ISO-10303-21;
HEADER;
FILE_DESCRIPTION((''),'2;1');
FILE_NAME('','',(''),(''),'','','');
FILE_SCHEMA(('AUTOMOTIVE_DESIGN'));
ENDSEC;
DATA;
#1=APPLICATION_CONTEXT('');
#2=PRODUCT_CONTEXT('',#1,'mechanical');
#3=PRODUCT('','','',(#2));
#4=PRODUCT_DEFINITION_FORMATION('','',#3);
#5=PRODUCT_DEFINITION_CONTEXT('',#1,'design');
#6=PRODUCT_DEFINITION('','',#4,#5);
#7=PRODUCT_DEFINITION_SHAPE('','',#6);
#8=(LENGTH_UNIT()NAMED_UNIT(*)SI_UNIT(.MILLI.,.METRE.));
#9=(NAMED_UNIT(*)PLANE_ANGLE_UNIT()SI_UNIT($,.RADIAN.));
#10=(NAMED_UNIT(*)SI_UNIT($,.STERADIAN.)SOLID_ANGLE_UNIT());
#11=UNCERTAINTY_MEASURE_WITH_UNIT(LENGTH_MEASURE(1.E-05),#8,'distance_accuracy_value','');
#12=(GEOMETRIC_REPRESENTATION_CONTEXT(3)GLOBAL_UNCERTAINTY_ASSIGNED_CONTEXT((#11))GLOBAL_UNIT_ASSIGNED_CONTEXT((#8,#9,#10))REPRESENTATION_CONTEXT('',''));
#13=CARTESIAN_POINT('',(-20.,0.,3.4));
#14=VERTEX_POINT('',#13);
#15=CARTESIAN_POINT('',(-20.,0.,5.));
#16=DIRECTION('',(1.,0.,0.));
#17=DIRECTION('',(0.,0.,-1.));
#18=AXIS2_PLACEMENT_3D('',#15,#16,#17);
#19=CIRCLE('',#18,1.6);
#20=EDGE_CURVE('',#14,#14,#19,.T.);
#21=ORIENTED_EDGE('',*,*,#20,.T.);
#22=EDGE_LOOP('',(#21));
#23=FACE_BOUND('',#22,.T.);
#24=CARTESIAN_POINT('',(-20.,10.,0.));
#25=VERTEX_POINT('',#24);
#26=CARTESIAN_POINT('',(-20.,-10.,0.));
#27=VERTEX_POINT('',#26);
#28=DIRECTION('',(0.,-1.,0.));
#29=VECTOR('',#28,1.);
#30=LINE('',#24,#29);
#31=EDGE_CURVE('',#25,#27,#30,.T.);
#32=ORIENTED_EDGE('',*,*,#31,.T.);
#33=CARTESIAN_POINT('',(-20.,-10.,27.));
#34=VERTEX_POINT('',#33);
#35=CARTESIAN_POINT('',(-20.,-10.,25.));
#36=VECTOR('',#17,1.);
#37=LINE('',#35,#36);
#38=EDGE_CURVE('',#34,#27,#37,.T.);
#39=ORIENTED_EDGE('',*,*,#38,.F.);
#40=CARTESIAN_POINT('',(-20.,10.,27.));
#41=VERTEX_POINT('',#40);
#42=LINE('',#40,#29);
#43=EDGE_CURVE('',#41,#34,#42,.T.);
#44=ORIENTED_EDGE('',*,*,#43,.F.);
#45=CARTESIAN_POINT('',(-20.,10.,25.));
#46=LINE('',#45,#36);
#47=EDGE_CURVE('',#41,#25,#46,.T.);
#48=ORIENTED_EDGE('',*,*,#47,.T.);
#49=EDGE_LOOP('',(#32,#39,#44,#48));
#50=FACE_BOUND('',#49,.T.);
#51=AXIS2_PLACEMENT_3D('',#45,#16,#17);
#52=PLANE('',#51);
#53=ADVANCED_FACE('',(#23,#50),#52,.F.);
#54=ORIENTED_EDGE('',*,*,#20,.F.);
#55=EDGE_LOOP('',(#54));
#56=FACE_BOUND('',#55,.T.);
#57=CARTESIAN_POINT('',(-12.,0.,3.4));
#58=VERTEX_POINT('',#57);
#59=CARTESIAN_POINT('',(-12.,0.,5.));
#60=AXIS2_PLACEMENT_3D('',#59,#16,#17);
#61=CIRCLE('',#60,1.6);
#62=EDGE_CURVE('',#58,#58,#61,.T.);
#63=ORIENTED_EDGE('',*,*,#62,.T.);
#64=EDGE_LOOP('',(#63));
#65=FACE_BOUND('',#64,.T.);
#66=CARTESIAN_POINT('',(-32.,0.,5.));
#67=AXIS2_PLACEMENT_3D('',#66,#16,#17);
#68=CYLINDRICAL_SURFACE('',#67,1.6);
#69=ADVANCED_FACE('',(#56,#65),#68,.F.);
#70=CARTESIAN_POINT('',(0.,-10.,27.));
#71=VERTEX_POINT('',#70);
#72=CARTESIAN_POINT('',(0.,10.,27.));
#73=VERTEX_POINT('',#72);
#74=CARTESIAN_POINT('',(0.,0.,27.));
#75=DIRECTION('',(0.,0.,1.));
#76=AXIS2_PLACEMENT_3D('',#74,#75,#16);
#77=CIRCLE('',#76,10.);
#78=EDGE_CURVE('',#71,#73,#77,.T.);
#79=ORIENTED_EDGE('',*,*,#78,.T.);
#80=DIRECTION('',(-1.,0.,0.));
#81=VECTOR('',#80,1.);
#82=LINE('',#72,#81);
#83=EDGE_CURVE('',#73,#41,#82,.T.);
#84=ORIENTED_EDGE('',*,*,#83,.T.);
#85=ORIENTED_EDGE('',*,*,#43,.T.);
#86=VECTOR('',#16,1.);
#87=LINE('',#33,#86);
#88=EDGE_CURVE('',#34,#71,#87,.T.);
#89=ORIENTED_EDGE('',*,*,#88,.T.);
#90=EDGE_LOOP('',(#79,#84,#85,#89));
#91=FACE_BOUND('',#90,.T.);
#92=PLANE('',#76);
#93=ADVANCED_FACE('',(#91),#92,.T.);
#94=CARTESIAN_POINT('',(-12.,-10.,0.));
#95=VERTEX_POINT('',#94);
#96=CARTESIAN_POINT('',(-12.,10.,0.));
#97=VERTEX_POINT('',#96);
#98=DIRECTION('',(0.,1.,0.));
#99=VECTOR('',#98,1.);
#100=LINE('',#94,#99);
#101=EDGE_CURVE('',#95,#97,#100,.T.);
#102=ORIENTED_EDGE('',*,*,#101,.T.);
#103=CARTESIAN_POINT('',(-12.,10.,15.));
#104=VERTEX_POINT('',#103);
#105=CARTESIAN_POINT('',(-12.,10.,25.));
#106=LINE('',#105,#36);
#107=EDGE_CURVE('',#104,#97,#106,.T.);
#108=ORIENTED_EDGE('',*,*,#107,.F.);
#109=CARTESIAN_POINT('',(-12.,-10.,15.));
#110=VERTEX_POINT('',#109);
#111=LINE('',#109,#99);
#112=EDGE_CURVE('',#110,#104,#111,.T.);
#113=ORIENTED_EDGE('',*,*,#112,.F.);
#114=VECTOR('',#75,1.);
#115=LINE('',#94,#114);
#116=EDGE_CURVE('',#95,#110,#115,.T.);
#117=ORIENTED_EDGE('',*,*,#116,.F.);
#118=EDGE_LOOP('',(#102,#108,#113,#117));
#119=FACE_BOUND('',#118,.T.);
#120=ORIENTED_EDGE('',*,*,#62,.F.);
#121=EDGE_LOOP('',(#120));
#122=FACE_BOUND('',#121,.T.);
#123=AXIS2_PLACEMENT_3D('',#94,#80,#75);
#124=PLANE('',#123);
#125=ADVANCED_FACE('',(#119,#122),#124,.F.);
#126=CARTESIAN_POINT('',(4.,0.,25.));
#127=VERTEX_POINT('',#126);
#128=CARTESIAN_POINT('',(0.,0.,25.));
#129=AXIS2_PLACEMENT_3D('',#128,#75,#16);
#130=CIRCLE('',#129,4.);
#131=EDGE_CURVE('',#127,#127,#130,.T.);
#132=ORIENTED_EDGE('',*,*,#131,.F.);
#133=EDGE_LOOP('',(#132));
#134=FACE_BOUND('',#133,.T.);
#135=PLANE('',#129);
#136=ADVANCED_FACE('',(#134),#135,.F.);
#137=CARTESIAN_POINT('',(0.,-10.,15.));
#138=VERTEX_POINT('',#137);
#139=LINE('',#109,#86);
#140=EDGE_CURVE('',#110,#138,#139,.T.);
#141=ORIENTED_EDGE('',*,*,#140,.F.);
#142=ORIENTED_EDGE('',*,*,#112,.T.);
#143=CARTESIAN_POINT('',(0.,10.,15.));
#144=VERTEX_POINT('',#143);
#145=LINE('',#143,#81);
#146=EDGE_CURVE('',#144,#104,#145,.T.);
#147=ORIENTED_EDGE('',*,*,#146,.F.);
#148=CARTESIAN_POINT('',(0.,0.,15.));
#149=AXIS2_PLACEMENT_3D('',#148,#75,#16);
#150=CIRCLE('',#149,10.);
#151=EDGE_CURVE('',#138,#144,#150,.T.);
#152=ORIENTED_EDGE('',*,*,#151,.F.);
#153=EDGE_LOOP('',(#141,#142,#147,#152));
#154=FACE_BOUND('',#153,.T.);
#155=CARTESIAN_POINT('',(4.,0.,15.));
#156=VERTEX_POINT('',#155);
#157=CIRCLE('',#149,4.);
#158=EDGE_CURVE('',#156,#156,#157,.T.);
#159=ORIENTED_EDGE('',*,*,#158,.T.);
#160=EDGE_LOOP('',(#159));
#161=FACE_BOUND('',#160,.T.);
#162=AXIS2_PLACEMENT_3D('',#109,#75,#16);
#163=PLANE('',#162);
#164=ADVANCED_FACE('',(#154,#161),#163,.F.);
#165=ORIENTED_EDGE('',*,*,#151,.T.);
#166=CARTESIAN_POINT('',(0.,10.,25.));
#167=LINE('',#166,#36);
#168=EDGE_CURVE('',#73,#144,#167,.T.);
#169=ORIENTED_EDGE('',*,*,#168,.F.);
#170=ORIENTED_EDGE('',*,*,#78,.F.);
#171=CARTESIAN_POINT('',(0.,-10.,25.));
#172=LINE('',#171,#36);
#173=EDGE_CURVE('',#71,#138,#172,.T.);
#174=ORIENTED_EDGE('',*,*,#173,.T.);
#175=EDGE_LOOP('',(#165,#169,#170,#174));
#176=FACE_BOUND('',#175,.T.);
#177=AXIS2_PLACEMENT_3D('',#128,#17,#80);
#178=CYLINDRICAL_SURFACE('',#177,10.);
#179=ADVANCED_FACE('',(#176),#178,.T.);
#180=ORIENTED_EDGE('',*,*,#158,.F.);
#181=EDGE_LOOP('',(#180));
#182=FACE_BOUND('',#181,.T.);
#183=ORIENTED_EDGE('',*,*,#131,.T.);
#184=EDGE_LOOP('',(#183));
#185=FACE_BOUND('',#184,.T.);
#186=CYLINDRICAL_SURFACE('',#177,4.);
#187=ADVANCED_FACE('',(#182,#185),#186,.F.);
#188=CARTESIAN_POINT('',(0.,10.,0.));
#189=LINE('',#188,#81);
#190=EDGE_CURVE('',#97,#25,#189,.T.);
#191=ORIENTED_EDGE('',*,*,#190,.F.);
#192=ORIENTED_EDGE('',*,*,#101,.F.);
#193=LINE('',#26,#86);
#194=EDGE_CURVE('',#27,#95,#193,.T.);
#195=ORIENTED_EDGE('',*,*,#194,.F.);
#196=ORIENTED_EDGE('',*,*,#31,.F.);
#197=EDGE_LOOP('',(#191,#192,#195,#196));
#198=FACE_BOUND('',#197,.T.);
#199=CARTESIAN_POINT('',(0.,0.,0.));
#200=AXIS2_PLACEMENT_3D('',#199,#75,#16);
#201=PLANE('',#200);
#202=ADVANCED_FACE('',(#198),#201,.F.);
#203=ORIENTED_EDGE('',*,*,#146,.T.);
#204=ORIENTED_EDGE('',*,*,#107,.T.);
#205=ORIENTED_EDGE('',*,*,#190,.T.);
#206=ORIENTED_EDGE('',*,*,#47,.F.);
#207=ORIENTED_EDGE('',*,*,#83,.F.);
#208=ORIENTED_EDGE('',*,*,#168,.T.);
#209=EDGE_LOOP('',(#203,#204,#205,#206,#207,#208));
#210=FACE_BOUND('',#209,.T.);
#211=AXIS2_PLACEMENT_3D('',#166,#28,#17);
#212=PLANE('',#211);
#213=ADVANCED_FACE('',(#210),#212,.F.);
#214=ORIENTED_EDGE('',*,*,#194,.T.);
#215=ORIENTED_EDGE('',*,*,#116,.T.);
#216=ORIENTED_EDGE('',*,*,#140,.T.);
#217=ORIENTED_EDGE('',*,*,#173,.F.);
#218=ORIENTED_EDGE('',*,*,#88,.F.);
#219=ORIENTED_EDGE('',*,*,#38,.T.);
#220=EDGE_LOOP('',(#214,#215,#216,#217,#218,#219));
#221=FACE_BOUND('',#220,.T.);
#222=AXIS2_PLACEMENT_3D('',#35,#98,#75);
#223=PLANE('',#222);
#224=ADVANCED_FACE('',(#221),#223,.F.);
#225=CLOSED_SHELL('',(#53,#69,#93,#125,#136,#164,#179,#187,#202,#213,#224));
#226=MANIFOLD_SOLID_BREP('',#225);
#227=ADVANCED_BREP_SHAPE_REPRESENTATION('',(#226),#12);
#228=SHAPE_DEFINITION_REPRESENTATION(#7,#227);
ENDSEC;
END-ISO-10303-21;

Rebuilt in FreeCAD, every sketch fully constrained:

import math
import FreeCAD as App
import Part
import Sketcher
from FreeCAD import Vector


def add_polygon(sketch, points):
    """Adds a closed chain of lines whose ends are joined by coincident constraints."""
    first, n = sketch.GeometryCount, len(points)
    for a, b in zip(points, points[1:] + points[:1]):
        sketch.addGeometry(Part.LineSegment(App.Vector(*a, 0), App.Vector(*b, 0)), False)
    for i in range(n):
        sketch.addConstraint(Sketcher.Constraint("Coincident", first + i, 2, first + (i + 1) % n, 1))

doc = App.newDocument("Part")
body = doc.addObject("PartDesign::Body", "Body")

# Sketch on XY plane
sketch1 = body.newObject("Sketcher::SketchObject", "Sketch")
sketch1.AttachmentSupport = (doc.getObject("XY_Plane"), [""])
sketch1.MapMode = "FlatFace"
sketch1.addGeometry(Part.LineSegment(Vector(0, 10, 0), Vector(-20, 10, 0)), False)
sketch1.addGeometry(Part.LineSegment(Vector(-20, 10, 0), Vector(-20, -10, 0)), False)
sketch1.addGeometry(Part.LineSegment(Vector(-20, -10, 0), Vector(0, -10, 0)), False)
sketch1.addGeometry(Part.ArcOfCircle(Part.Circle(Vector(0, 0, 0), Vector(0, 0, 1), 10), math.radians(-90), math.radians(90)), False)
sketch1.addGeometry(Part.Circle(Vector(0, 0, 0), Vector(0, 0, 1), 4), False)
sketch1.addConstraint(Sketcher.Constraint("Coincident", 0, 2, 1, 1))
sketch1.addConstraint(Sketcher.Constraint("Coincident", 1, 2, 2, 1))
sketch1.addConstraint(Sketcher.Constraint("Tangent", 2, 2, 3, 1))
sketch1.addConstraint(Sketcher.Constraint("Tangent", 3, 2, 0, 1))
sketch1.addConstraint(Sketcher.Constraint("Horizontal", 0))
sketch1.addConstraint(Sketcher.Constraint("Vertical", 1))
sketch1.addConstraint(Sketcher.Constraint("Horizontal", 2))
sketch1.addConstraint(Sketcher.Constraint("Coincident", 3, 3, -1, 1))
sketch1.addConstraint(Sketcher.Constraint("Coincident", 4, 3, -1, 1))
sketch1.addConstraint(Sketcher.Constraint("Equal", 2, 1))
sketch1.addConstraint(Sketcher.Constraint("Diameter", 4, 8.0))
sketch1.addConstraint(Sketcher.Constraint("Radius", 3, 10.0))
pad1 = body.newObject("PartDesign::Pad", "Pad")
pad1.Profile = sketch1
pad1.Length = 25

# Sketch on XZ plane
sketch2 = body.newObject("Sketcher::SketchObject", "Sketch001")
sketch2.AttachmentSupport = (doc.getObject("XZ_Plane"), [""])
sketch2.MapMode = "FlatFace"
sketch2.AttachmentOffset = App.Placement(Vector(0, 0, -10), App.Rotation())
add_polygon(sketch2, [(-12, 0), (-12, 15), (10, 15), (10, 0)])  # lines 0-3
sketch2.addConstraint(Sketcher.Constraint("Vertical", 0))
sketch2.addConstraint(Sketcher.Constraint("Horizontal", 1))
sketch2.addConstraint(Sketcher.Constraint("Vertical", 2))
sketch2.addConstraint(Sketcher.Constraint("Horizontal", 3))
sketch2.addConstraint(Sketcher.Constraint("PointOnObject", 2, 2, -1))
sketch2.addConstraint(Sketcher.Constraint("DistanceX", 1, 1, 1, 2, 22.0))
sketch2.addConstraint(Sketcher.Constraint("DistanceY", 0, 1, 0, 2, 15.0))
sketch2.addConstraint(Sketcher.Constraint("DistanceX", 0, 2, -1, 1, 12.0))
pocket1 = body.newObject("PartDesign::Pocket", "Pocket")
pocket1.Profile = sketch2
pocket1.Type = "ThroughAll"
pocket1.Midplane = True

# Sketch on YZ plane
sketch3 = body.newObject("Sketcher::SketchObject", "Sketch002")
sketch3.AttachmentSupport = (doc.getObject("YZ_Plane"), [""])
sketch3.MapMode = "FlatFace"
sketch3.AttachmentOffset = App.Placement(Vector(0, 0, -12), App.Rotation())
sketch3.addGeometry(Part.Circle(Vector(0, 5, 0), Vector(0, 0, 1), 1.6), False)
sketch3.addConstraint(Sketcher.Constraint("PointOnObject", 0, 3, -2))
sketch3.addConstraint(Sketcher.Constraint("Diameter", 0, 3.2))
sketch3.addConstraint(Sketcher.Constraint("DistanceY", -1, 1, 0, 3, 5.0))
pocket2 = body.newObject("PartDesign::Pocket", "Pocket001")
pocket2.Profile = sketch3
pocket2.Length = 20

# Sketch on XY plane
sketch4 = body.newObject("Sketcher::SketchObject", "Sketch003")
sketch4.AttachmentSupport = (doc.getObject("XY_Plane"), [""])
sketch4.MapMode = "FlatFace"
sketch4.AttachmentOffset = App.Placement(Vector(0, 0, 25), App.Rotation())
sketch4.addGeometry(Part.LineSegment(Vector(0, 10, 0), Vector(-20, 10, 0)), False)
sketch4.addGeometry(Part.LineSegment(Vector(-20, 10, 0), Vector(-20, -10, 0)), False)
sketch4.addGeometry(Part.LineSegment(Vector(-20, -10, 0), Vector(0, -10, 0)), False)
sketch4.addGeometry(Part.ArcOfCircle(Part.Circle(Vector(0, 0, 0), Vector(0, 0, 1), 10), math.radians(-90), math.radians(90)), False)
sketch4.addConstraint(Sketcher.Constraint("Coincident", 0, 2, 1, 1))
sketch4.addConstraint(Sketcher.Constraint("Coincident", 1, 2, 2, 1))
sketch4.addConstraint(Sketcher.Constraint("Tangent", 2, 2, 3, 1))
sketch4.addConstraint(Sketcher.Constraint("Tangent", 3, 2, 0, 1))
sketch4.addConstraint(Sketcher.Constraint("Horizontal", 0))
sketch4.addConstraint(Sketcher.Constraint("Vertical", 1))
sketch4.addConstraint(Sketcher.Constraint("Horizontal", 2))
sketch4.addConstraint(Sketcher.Constraint("Coincident", 3, 3, -1, 1))
sketch4.addConstraint(Sketcher.Constraint("Equal", 2, 1))
sketch4.addConstraint(Sketcher.Constraint("Radius", 3, 10.0))
pad2 = body.newObject("PartDesign::Pad", "Pad001")
pad2.Profile = sketch4
pad2.Length = 2

doc.recompute()
